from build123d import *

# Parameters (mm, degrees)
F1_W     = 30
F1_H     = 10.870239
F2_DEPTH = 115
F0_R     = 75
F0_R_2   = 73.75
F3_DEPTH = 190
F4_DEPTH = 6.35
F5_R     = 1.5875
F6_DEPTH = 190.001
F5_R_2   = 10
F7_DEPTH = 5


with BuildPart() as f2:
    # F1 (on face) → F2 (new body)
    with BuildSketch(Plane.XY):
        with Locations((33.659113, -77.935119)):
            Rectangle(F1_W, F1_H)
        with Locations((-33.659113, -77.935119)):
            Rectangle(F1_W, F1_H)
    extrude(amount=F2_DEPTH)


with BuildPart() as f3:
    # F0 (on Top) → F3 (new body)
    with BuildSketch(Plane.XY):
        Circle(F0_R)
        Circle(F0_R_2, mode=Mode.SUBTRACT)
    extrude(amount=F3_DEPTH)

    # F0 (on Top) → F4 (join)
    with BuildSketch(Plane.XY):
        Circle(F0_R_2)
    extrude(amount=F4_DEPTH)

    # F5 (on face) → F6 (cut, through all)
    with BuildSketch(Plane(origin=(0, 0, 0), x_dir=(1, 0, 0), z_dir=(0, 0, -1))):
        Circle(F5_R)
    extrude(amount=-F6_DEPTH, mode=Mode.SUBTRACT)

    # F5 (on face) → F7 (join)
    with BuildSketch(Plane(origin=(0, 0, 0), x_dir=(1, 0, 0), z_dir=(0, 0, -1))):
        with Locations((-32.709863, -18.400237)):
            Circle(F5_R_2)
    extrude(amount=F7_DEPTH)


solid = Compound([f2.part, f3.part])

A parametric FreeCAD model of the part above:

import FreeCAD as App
import Part
import Sketcher

V = App.Vector


def add_polygon(sketch, points):
    """Adds a closed chain of lines whose ends are joined by coincident constraints."""
    first, n = sketch.GeometryCount, len(points)
    for a, b in zip(points, points[1:] + points[:1]):
        sketch.addGeometry(Part.LineSegment(App.Vector(*a, 0), App.Vector(*b, 0)), False)
    for i in range(n):
        sketch.addConstraint(Sketcher.Constraint("Coincident", first + i, 2, first + (i + 1) % n, 1))

doc = App.newDocument("Part")
body = doc.addObject("PartDesign::Body", "Body")
body.AllowCompound = True

sketch1 = doc.addObject("Sketcher::SketchObject", "Sketch")
body.addObject(sketch1)
sketch1.AttachmentSupport = (doc.XY_Plane, [""])
sketch1.MapMode = "FlatFace"
add_polygon(sketch1, [(19, -72), (19, -83), (49, -83), (49, -72)])
add_polygon(sketch1, [(-49, -72), (-49, -83), (-19, -83), (-19, -72)])
sketch1.addConstraint(Sketcher.Constraint("Vertical", 0))
sketch1.addConstraint(Sketcher.Constraint("Horizontal", 1))
sketch1.addConstraint(Sketcher.Constraint("Vertical", 2))
sketch1.addConstraint(Sketcher.Constraint("Horizontal", 3))
sketch1.addConstraint(Sketcher.Constraint("Vertical", 4))
sketch1.addConstraint(Sketcher.Constraint("Horizontal", 5))
sketch1.addConstraint(Sketcher.Constraint("Vertical", 6))
sketch1.addConstraint(Sketcher.Constraint("Horizontal", 7))
sketch1.addConstraint(Sketcher.Constraint("Symmetric", 1, 2, 4, 2, -2))
sketch1.addConstraint(Sketcher.Constraint("Symmetric", 3, 2, 6, 2, -2))
sketch1.addConstraint(Sketcher.Constraint("DistanceX", 1, 1, 1, 2, 30.0))
sketch1.addConstraint(Sketcher.Constraint("DistanceY", 2, 2, -1, 1, 72.5))
sketch1.addConstraint(Sketcher.Constraint("DistanceY", 0, 2, 0, 1, 10.870239))
sketch1.addConstraint(Sketcher.Constraint("DistanceX", -1, 1, 0, 2, 18.659113))
pad1 = doc.addObject("PartDesign::Pad", "Pad")
body.addObject(pad1)
pad1.Profile = sketch1
pad1.Length = 115
body2 = doc.addObject("PartDesign::Body", "Body001")

sketch2 = doc.addObject("Sketcher::SketchObject", "Sketch001")
body2.addObject(sketch2)
sketch2.AttachmentSupport = (doc.getObject("XY_Plane001"), [""])
sketch2.MapMode = "FlatFace"
sketch2.addGeometry(Part.Circle(V(0, 0, 0), V(0, 0, 1), 75), False)
sketch2.addGeometry(Part.Circle(V(0, 0, 0), V(0, 0, 1), 74), False)
sketch2.addConstraint(Sketcher.Constraint("Coincident", 0, 3, -1, 1))
sketch2.addConstraint(Sketcher.Constraint("Coincident", 1, 3, -1, 1))
sketch2.addConstraint(Sketcher.Constraint("Diameter", 0, 150.0))
sketch2.addConstraint(Sketcher.Constraint("Diameter", 1, 147.5))
pad2 = doc.addObject("PartDesign::Pad", "Pad001")
body2.addObject(pad2)
pad2.Profile = sketch2
pad2.Length = 190

sketch3 = doc.addObject("Sketcher::SketchObject", "Sketch002")
body2.addObject(sketch3)
sketch3.AttachmentSupport = (doc.getObject("XY_Plane001"), [""])
sketch3.MapMode = "FlatFace"
sketch3.addGeometry(Part.Circle(V(0, 0, 0), V(0, 0, 1), 74), False)
sketch3.addConstraint(Sketcher.Constraint("Coincident", 0, 3, -1, 1))
sketch3.addConstraint(Sketcher.Constraint("Diameter", 0, 147.5))
pad3 = doc.addObject("PartDesign::Pad", "Pad002")
body2.addObject(pad3)
pad3.Profile = sketch3
pad3.Length = 6.35

sketch4 = doc.addObject("Sketcher::SketchObject", "Sketch003")
body2.addObject(sketch4)
sketch4.AttachmentSupport = (doc.getObject("XY_Plane001"), [""])
sketch4.MapMode = "FlatFace"
sketch4.addGeometry(Part.Circle(V(0, 0, 0), V(0, 0, 1), 1.6), False)
sketch4.addConstraint(Sketcher.Constraint("Coincident", 0, 3, -1, 1))
sketch4.addConstraint(Sketcher.Constraint("Diameter", 0, 3.175))
pocket1 = doc.addObject("PartDesign::Pocket", "Pocket")
body2.addObject(pocket1)
pocket1.Profile = sketch4
pocket1.Type = "ThroughAll"
pocket1.Reversed = True

sketch5 = doc.addObject("Sketcher::SketchObject", "Sketch004")
body2.addObject(sketch5)
sketch5.AttachmentSupport = (doc.getObject("XY_Plane001"), [""])
sketch5.MapMode = "FlatFace"
sketch5.addGeometry(Part.Circle(V(-33, 18, 0), V(0, 0, 1), 10), False)
sketch5.addConstraint(Sketcher.Constraint("Diameter", 0, 20.0))
sketch5.addConstraint(Sketcher.Constraint("DistanceX", 0, 3, -1, 1, 32.709863))
sketch5.addConstraint(Sketcher.Constraint("DistanceY", -1, 1, 0, 3, 18.400237))
pad4 = doc.addObject("PartDesign::Pad", "Pad003")
body2.addObject(pad4)
pad4.Profile = sketch5
pad4.Length = 5
pad4.Reversed = True

doc.recompute()
